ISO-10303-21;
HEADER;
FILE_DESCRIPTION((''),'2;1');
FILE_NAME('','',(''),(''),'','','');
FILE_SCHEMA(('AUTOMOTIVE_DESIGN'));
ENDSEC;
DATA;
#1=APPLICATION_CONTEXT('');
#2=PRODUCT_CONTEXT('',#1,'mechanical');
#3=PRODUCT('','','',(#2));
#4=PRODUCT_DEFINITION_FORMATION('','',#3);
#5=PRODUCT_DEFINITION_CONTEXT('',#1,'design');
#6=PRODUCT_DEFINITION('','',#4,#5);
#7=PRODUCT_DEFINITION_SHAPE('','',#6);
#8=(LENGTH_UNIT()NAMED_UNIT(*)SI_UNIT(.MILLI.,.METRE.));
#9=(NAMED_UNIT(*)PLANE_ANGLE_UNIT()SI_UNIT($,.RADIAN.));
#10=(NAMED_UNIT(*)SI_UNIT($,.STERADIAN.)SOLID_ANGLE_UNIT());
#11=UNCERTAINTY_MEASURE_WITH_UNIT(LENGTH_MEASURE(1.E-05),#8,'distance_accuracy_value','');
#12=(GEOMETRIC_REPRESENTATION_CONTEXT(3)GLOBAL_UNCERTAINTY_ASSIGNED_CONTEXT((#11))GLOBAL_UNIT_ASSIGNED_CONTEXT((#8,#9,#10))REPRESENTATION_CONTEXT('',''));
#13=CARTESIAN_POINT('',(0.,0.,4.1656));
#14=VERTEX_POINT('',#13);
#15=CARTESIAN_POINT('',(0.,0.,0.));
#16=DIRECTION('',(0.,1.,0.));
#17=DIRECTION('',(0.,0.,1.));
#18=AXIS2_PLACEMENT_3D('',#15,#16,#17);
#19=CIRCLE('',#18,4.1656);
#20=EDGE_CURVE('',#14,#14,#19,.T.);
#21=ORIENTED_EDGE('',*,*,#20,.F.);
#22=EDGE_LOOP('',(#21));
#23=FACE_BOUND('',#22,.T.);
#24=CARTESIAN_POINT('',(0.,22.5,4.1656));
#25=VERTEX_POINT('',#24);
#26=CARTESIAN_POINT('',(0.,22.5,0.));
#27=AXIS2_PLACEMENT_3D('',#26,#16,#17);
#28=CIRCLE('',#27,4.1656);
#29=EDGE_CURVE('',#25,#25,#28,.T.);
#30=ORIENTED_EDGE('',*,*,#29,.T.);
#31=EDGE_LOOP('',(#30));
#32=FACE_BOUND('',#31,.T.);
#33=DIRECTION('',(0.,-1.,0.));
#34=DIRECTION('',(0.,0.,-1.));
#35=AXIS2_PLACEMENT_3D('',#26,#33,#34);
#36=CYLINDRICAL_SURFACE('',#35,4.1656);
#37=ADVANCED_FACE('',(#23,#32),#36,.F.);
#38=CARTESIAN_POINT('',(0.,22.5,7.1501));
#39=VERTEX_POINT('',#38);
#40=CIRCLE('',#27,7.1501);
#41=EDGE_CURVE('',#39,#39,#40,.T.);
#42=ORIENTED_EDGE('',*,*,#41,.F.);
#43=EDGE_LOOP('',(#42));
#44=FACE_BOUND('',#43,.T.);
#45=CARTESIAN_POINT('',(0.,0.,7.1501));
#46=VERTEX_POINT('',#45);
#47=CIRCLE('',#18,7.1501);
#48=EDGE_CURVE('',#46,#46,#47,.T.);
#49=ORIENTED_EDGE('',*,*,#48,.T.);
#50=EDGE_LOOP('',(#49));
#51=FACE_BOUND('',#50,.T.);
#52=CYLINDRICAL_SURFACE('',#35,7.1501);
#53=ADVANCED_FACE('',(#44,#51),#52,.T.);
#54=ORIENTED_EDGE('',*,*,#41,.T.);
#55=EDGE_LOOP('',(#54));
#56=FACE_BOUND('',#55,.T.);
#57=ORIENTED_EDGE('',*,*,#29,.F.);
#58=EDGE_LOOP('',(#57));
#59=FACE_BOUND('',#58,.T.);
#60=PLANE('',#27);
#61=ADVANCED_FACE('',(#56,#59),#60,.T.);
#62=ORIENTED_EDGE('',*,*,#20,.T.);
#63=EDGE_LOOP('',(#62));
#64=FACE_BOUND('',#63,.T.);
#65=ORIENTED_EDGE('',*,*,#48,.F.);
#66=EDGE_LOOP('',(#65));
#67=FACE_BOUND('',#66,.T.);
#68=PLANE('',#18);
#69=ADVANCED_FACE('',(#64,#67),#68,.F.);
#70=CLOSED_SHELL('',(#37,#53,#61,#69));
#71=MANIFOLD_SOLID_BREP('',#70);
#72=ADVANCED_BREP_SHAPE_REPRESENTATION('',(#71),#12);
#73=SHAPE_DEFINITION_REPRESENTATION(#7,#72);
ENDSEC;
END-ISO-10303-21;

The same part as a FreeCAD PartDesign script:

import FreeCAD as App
import Part
import Sketcher

V = App.Vector
Q = App.Units.Quantity

doc = App.newDocument("Part")
body = doc.addObject("PartDesign::Body", "Body")

# Sketch on XZ plane
sketch1 = body.newObject("Sketcher::SketchObject", "Sketch")
sketch1.AttachmentSupport = (doc.getObject("XZ_Plane"), [""])
sketch1.MapMode = "FlatFace"
sketch1.addGeometry([
    Part.Circle(V(0, 0, 0), V(0, 0, 1), 7.2),
    Part.Circle(V(0, 0, 0), V(0, 0, 1), 4.2),
], False)
sketch1.addConstraint([
    Sketcher.Constraint("Coincident", 0, 3, -1, 1),
    Sketcher.Constraint("Coincident", 1, 3, -1, 1),
    Sketcher.Constraint("Diameter", 0, Q("0.563 in")),
    Sketcher.Constraint("Diameter", 1, Q("0.328 in")),
])
pad1 = body.newObject("PartDesign::Pad", "Pad")
pad1.Profile = sketch1
pad1.Length = 22.5
pad1.Reversed = True

doc.recompute()
